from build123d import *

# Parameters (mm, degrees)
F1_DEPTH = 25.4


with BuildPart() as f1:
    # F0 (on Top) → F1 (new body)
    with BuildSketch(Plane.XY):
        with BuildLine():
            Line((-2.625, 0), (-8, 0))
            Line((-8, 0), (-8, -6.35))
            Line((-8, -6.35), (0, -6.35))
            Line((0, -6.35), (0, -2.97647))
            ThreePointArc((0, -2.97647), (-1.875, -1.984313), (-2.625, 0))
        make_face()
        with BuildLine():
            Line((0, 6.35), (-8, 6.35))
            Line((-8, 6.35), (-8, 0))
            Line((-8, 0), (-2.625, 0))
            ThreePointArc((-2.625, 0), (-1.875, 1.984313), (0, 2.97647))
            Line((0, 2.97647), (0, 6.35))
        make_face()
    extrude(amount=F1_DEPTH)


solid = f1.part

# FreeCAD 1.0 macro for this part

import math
import FreeCAD as App
import Part
import Sketcher

V = App.Vector

doc = App.newDocument("Part")
body = doc.addObject("PartDesign::Body", "Body")

# Sketch on XY plane
sketch1 = body.newObject("Sketcher::SketchObject", "Sketch")
sketch1.AttachmentSupport = (doc.getObject("XY_Plane"), [""])
sketch1.MapMode = "FlatFace"
sketch1.addGeometry([
    Part.LineSegment(V(-8, -6.3, 0), V(0, -6.3, 0)),  # 0
    Part.LineSegment(V(0, -6.3, 0), V(0, -3, 0)),  # 1
    Part.ArcOfCircle(Part.Circle(V(0.4, 0, 0), V(0, 0, 1), 3), math.radians(-180), math.radians(-97)),  # 2
    Part.ArcOfCircle(Part.Circle(V(0.4, 0, 0), V(0, 0, 1), 3), math.radians(97), math.radians(180)),  # 3
    Part.LineSegment(V(0, 3, 0), V(0, 6.3, 0)),  # 4
    Part.LineSegment(V(0, 6.3, 0), V(-8, 6.3, 0)),  # 5
    Part.LineSegment(V(-8, 6.3, 0), V(-8, -6.3, 0)),  # 6
], False)
sketch1.addConstraint([
    Sketcher.Constraint("Coincident", 0, 2, 1, 1),
    Sketcher.Constraint("Coincident", 1, 2, 2, 2),
    Sketcher.Constraint("Tangent", 2, 1, 3, 2),
    Sketcher.Constraint("Coincident", 3, 1, 4, 1),
    Sketcher.Constraint("Coincident", 4, 2, 5, 1),
    Sketcher.Constraint("Coincident", 5, 2, 6, 1),
    Sketcher.Constraint("Coincident", 6, 2, 0, 1),
    Sketcher.Constraint("Horizontal", 0),
    Sketcher.Constraint("Vertical", 1),
    Sketcher.Constraint("Vertical", 4),
    Sketcher.Constraint("Horizontal", 5),
    Sketcher.Constraint("Vertical", 6),
    Sketcher.Constraint("Equal", 2, 3),
    Sketcher.Constraint("Symmetric", 1, 2, 3, 1, -1, 1),
    Sketcher.Constraint("Symmetric", 0, 2, 4, 2, -1),
    Sketcher.Constraint("PointOnObject", 2, 1, -1),
    Sketcher.Constraint("Radius", 2, 3.000001),
    Sketcher.Constraint("DistanceX", 0, 1, 0, 2, 8.0),
    Sketcher.Constraint("DistanceY", 6, 2, 6, 1, 12.7),
    Sketcher.Constraint("DistanceX", -1, 1, 2, 3, 0.375001),
])
pad1 = body.newObject("PartDesign::Pad", "Pad")
pad1.Profile = sketch1
pad1.Length = 25.4

doc.recompute()
